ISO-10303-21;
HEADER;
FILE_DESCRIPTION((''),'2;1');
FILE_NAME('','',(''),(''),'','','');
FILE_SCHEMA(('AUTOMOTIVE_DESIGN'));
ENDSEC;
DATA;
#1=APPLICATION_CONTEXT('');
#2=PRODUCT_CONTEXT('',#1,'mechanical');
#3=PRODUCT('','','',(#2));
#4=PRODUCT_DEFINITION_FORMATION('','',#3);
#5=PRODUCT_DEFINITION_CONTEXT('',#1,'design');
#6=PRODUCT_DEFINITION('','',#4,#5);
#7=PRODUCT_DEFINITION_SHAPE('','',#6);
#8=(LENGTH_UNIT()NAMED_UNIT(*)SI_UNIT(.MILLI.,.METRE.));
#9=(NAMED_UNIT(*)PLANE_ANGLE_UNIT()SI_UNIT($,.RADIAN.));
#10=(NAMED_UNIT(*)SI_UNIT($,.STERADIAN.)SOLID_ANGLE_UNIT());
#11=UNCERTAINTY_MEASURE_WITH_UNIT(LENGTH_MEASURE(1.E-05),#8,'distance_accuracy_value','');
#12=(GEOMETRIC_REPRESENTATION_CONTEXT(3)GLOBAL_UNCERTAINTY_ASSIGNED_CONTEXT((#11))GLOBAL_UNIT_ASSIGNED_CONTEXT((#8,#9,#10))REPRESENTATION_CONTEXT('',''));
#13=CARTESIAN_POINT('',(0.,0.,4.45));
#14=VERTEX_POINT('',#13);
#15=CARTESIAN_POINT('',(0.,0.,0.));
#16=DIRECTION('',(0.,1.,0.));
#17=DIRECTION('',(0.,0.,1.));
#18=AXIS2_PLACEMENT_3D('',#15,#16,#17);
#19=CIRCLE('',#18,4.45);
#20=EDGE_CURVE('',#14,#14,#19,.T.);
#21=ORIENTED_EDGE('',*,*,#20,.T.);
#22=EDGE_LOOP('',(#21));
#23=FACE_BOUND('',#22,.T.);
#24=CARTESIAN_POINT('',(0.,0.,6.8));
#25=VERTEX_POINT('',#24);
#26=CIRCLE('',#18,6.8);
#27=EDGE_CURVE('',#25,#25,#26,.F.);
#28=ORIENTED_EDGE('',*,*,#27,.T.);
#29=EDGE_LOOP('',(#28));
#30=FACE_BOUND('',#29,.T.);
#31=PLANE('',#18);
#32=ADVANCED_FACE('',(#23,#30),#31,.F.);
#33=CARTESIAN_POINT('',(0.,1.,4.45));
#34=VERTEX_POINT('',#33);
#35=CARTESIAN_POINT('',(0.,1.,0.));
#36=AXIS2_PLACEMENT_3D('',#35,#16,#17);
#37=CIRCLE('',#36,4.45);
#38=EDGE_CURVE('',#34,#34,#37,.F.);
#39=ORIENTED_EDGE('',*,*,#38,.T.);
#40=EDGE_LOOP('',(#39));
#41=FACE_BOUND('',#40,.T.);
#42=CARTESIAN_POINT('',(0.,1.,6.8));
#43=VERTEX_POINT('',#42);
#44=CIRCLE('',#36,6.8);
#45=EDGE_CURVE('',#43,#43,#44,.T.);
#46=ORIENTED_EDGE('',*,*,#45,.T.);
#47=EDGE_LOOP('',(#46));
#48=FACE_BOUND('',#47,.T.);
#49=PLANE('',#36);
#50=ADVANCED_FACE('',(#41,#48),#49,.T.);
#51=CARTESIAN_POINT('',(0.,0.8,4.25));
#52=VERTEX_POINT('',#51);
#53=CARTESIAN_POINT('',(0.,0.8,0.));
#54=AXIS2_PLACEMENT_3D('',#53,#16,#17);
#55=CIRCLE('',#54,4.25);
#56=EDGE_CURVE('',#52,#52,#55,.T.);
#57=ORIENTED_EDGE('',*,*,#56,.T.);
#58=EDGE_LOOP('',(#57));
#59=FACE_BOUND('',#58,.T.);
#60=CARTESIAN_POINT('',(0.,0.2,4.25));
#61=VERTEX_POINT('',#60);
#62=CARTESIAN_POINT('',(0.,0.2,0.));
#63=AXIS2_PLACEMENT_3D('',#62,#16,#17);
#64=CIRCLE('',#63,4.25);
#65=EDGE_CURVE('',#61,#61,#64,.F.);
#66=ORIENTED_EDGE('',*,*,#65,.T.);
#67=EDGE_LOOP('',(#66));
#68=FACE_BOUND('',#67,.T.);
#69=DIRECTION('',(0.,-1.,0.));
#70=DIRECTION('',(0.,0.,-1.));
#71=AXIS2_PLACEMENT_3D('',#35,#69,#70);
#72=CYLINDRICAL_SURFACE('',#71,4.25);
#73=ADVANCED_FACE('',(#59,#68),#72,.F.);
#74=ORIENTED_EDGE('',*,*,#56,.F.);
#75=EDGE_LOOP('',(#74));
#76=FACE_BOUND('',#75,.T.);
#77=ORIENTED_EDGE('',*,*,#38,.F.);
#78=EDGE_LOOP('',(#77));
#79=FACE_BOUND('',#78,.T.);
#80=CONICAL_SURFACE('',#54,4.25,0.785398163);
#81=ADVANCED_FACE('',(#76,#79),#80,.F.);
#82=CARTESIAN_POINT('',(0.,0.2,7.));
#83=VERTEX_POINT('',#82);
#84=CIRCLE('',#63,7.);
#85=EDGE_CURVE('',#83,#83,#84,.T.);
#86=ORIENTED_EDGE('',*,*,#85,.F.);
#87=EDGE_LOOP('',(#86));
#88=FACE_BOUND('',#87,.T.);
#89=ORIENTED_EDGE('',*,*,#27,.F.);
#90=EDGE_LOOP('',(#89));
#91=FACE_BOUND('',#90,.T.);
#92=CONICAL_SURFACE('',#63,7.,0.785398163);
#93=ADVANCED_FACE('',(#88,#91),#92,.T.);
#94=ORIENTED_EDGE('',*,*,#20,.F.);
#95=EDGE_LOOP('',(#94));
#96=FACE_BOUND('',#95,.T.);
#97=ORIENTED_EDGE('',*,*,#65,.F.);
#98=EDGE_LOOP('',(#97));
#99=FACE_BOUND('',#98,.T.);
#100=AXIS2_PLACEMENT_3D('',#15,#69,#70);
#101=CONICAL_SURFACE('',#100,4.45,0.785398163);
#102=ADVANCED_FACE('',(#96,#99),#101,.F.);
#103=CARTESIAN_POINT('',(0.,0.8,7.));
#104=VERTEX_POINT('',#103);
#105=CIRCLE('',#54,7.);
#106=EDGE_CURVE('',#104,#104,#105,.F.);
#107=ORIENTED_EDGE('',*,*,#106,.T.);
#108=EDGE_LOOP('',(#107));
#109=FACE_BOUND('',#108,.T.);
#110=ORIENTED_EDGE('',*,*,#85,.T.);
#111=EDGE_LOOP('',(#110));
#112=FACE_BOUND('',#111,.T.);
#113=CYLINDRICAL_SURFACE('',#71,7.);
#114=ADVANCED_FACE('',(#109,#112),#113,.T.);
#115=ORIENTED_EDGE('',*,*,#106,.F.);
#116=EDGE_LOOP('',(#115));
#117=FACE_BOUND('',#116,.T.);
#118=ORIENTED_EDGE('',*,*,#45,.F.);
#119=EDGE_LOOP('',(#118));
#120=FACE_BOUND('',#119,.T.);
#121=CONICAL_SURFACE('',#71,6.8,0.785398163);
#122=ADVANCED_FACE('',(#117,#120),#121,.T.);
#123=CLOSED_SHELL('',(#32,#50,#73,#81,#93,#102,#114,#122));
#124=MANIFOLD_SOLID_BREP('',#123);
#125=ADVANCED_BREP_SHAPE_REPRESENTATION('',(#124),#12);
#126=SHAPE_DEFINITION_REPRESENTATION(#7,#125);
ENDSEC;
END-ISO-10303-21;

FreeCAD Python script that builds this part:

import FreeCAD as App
import Part
import Sketcher
from FreeCAD import Vector


def edges_at(feature, points):
    """Names of the edges that pass closest to the given points."""
    edges = feature.Shape.Edges
    near = lambda p: min(range(len(edges)), key=lambda i: edges[i].distToShape(Part.Vertex(*p))[0])
    return sorted({f"Edge{near(p) + 1}" for p in points})

doc = App.newDocument("Part")
body = doc.addObject("PartDesign::Body", "Body")

sketch1 = body.newObject("Sketcher::SketchObject", "Sketch")
sketch1.AttachmentSupport = (doc.getObject("XZ_Plane"), [""])
sketch1.MapMode = "FlatFace"
sketch1.addGeometry(Part.Circle(Vector(0, 0, 0), Vector(0, 0, 1), 7), False)
sketch1.addGeometry(Part.Circle(Vector(0, 0, 0), Vector(0, 0, 1), 4.2), False)
sketch1.addConstraint(Sketcher.Constraint("Coincident", 0, 3, -1, 1))
sketch1.addConstraint(Sketcher.Constraint("Coincident", 1, 3, -1, 1))
sketch1.addConstraint(Sketcher.Constraint("Diameter", 0, 14.0))
sketch1.addConstraint(Sketcher.Constraint("Diameter", 1, 8.5))
pad1 = body.newObject("PartDesign::Pad", "Pad")
pad1.Profile = sketch1
pad1.Length = 1
pad1.Reversed = True
doc.recompute()

chamfer = body.newObject("PartDesign::Chamfer", "Chamfer")
chamfer.Base = (pad1, edges_at(pad1, [
    (0, 0, -7),
    (0, 1, -7),
    (0, 0, -4.25),
    (0, 1, -4.25),
]))
chamfer.Size = 0.2

doc.recompute()
